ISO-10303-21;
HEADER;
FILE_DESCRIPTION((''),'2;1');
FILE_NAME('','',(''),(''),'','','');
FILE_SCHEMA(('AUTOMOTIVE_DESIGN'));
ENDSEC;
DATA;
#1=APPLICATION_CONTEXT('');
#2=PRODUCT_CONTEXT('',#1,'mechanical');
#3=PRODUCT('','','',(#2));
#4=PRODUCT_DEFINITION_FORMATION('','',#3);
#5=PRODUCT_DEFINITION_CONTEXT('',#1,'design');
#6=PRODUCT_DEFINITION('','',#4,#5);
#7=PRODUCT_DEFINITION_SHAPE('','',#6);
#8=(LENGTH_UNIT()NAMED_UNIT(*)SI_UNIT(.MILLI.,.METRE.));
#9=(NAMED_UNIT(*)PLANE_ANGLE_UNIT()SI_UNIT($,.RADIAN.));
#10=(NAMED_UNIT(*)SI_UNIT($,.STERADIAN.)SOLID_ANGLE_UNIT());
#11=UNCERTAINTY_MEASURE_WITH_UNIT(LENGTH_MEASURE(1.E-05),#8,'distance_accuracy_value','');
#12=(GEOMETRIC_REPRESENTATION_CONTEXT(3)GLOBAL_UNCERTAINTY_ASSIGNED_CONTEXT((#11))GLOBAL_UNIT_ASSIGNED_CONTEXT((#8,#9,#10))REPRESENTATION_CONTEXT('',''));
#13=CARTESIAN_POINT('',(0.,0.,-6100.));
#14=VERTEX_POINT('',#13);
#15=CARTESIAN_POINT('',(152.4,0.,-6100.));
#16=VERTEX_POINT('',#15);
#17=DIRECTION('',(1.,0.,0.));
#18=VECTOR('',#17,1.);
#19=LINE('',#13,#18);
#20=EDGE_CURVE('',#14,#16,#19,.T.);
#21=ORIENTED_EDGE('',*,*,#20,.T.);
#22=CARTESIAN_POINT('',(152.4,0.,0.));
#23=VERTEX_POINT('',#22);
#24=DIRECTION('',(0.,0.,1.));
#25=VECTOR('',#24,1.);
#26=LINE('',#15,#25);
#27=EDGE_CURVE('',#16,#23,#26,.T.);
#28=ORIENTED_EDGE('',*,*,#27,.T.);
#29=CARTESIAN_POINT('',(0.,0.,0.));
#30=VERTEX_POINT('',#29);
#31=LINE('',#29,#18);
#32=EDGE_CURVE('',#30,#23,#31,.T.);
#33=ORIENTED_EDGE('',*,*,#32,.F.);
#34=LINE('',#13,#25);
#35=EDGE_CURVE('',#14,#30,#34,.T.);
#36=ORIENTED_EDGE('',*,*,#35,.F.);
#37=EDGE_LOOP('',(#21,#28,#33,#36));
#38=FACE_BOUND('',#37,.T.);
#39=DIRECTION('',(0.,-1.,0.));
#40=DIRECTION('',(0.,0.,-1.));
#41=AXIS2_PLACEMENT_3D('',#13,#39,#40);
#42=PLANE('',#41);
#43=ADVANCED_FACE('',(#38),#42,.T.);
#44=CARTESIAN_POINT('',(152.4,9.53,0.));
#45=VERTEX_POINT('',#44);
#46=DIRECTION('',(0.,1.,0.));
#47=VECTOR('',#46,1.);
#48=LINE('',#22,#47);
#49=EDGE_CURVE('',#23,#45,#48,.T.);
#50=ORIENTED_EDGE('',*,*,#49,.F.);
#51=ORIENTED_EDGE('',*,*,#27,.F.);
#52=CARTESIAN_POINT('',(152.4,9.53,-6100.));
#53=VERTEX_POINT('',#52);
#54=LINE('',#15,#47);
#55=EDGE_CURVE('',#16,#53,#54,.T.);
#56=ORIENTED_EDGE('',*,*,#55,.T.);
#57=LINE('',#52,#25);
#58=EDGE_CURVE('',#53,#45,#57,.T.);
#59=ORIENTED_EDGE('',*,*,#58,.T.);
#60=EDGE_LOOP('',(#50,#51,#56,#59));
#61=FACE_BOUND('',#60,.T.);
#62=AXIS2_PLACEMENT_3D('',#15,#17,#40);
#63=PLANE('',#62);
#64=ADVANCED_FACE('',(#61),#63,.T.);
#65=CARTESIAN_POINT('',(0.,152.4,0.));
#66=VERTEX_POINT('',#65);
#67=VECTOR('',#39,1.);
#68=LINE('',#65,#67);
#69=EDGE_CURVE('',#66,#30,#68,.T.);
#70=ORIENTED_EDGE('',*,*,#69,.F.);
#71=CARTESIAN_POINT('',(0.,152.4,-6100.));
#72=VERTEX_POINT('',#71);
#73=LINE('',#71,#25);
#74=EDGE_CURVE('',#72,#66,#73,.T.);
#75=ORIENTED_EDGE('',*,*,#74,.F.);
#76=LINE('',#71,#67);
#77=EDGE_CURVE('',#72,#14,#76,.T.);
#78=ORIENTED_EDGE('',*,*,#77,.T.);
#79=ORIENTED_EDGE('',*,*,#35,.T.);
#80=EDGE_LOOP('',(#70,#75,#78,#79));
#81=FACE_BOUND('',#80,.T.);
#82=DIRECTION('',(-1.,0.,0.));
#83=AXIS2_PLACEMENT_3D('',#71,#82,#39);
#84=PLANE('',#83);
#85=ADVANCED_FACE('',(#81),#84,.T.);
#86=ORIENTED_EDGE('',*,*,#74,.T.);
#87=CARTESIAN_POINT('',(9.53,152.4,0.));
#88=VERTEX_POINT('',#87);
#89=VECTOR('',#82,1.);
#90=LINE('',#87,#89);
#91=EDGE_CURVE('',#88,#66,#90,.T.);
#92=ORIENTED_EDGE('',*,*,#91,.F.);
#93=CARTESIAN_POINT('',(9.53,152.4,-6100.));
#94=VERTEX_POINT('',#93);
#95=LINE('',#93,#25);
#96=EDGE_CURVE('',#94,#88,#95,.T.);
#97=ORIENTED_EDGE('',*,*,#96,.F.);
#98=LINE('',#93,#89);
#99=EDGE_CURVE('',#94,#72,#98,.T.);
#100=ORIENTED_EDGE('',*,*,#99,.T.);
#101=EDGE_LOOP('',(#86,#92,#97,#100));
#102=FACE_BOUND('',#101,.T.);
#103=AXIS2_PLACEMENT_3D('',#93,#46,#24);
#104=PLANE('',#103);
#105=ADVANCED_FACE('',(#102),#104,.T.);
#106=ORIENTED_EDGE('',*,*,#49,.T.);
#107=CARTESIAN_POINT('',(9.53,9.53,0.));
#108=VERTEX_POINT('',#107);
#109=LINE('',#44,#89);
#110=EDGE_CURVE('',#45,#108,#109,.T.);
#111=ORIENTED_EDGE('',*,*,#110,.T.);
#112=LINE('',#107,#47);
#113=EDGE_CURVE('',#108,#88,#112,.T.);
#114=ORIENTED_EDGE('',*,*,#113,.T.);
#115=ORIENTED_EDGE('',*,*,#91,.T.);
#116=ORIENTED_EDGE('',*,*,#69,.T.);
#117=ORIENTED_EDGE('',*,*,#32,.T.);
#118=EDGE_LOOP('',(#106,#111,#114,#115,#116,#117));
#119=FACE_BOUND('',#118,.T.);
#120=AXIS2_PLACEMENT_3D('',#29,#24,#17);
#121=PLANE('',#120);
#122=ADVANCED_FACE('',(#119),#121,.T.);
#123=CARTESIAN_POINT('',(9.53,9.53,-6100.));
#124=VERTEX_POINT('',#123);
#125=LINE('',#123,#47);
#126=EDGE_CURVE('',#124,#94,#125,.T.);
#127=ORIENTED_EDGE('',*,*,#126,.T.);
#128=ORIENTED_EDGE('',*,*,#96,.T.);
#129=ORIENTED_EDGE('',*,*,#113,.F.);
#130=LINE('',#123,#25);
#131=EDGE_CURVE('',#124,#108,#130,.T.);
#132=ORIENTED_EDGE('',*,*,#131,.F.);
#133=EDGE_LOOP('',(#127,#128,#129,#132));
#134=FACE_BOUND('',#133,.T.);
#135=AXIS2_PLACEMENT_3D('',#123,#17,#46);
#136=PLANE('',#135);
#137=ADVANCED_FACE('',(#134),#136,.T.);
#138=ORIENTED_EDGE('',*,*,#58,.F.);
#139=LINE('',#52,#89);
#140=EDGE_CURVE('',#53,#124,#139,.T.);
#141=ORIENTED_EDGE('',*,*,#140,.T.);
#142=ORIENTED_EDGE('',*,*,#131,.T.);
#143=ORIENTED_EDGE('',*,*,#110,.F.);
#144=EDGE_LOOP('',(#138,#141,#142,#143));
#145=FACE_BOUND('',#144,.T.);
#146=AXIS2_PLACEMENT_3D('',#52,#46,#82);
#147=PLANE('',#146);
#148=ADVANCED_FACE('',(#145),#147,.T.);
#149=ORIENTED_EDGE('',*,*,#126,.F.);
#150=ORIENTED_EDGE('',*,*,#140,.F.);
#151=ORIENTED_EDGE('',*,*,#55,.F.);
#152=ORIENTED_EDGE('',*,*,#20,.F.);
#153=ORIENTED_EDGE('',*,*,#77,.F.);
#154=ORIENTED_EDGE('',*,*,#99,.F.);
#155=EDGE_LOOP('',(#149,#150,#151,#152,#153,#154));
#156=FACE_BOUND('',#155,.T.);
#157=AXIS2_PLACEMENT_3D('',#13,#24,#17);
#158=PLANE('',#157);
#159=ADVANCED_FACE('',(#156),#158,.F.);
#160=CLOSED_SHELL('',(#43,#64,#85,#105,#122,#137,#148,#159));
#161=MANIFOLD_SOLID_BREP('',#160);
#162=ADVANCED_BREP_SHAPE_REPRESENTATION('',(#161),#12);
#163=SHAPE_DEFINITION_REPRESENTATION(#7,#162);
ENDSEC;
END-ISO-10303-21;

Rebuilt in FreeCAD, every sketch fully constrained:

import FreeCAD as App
import Part
import Sketcher

doc = App.newDocument("Part")
body = doc.addObject("PartDesign::Body", "Body")

# Sketch on XY plane
sketch1 = doc.addObject("Sketcher::SketchObject", "Sketch")
body.addObject(sketch1)
sketch1.AttachmentSupport = (doc.XY_Plane, [""])
sketch1.MapMode = "FlatFace"
sketch1.addGeometry([
    Part.LineSegment(App.Vector(0, 152, 0), App.Vector(0, 0, 0)),  # 0
    Part.LineSegment(App.Vector(0, 0, 0), App.Vector(152, 0, 0)),  # 1
    Part.LineSegment(App.Vector(152, 0, 0), App.Vector(152, 10, 0)),  # 2
    Part.LineSegment(App.Vector(152, 10, 0), App.Vector(10, 10, 0)),  # 3
    Part.LineSegment(App.Vector(10, 10, 0), App.Vector(10, 152, 0)),  # 4
    Part.LineSegment(App.Vector(10, 152, 0), App.Vector(0, 152, 0)),  # 5
], False)
sketch1.addConstraint([
    Sketcher.Constraint("Coincident", 0, 2, 1, 1),
    Sketcher.Constraint("Coincident", 1, 2, 2, 1),
    Sketcher.Constraint("Coincident", 2, 2, 3, 1),
    Sketcher.Constraint("Coincident", 3, 2, 4, 1),
    Sketcher.Constraint("Coincident", 4, 2, 5, 1),
    Sketcher.Constraint("Coincident", 5, 2, 0, 1),
    Sketcher.Constraint("Vertical", 0),
    Sketcher.Constraint("Horizontal", 1),
    Sketcher.Constraint("Vertical", 2),
    Sketcher.Constraint("Horizontal", 3),
    Sketcher.Constraint("Vertical", 4),
    Sketcher.Constraint("Horizontal", 5),
    Sketcher.Constraint("Coincident", 0, 2, -1, 1),
    Sketcher.Constraint("Equal", 1, 0),
    Sketcher.Constraint("Equal", 5, 2),
    Sketcher.Constraint("DistanceX", 1, 1, 1, 2, 152.4),
    Sketcher.Constraint("DistanceX", 3, 2, 3, 1, 142.87),
])
pad1 = doc.addObject("PartDesign::Pad", "Pad")
body.addObject(pad1)
pad1.Profile = sketch1
pad1.Length = 6100
pad1.Reversed = True

doc.recompute()
